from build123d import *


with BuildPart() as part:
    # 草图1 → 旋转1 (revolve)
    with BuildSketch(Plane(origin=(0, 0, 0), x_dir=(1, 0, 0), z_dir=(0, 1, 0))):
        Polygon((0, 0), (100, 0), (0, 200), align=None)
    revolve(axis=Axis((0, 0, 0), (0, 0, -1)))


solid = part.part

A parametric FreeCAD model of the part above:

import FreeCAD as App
import Part
import Sketcher
from FreeCAD import Vector
Q = App.Units.Quantity


def add_polygon(sketch, points):
    """Adds a closed chain of lines whose ends are joined by coincident constraints."""
    first, n = sketch.GeometryCount, len(points)
    for a, b in zip(points, points[1:] + points[:1]):
        sketch.addGeometry(Part.LineSegment(App.Vector(*a, 0), App.Vector(*b, 0)), False)
    for i in range(n):
        sketch.addConstraint(Sketcher.Constraint("Coincident", first + i, 2, first + (i + 1) % n, 1))

doc = App.newDocument("Part")
params = doc.addObject("Spreadsheet::Sheet", "Params")
for row, (alias, value) in enumerate([
    ("sketch1_width", "100 mm"),
    ("sketch1_height", "200 mm"),
    ("revolution_angle", "360 deg"),
], start=1):
    params.set(f"A{row}", alias)
    params.set(f"B{row}", "=" + value)
    params.setAlias(f"B{row}", alias)

body = doc.addObject("PartDesign::Body", "Body")

sketch1 = doc.addObject("Sketcher::SketchObject", "Sketch")
body.addObject(sketch1)
sketch1.AttachmentSupport = (doc.XZ_Plane, [""])
sketch1.MapMode = "FlatFace"
add_polygon(sketch1, [(0, 0), (100, 0), (0, -200)])
sketch1.addConstraint(Sketcher.Constraint("Horizontal", 0))
sketch1.addConstraint(Sketcher.Constraint("Vertical", 2))
sketch1.addConstraint(Sketcher.Constraint("Coincident", 2, 2, -1, 1))
sketch1.addConstraint(Sketcher.Constraint("DistanceX", 0, 1, 0, 2, Q("100 mm")))
sketch1.addConstraint(Sketcher.Constraint("DistanceY", 2, 1, 2, 2, Q("200 mm")))
sketch1.setExpression("Constraints[6]", "Params.sketch1_width")
sketch1.setExpression("Constraints[7]", "Params.sketch1_height")
revolution = doc.addObject("PartDesign::Revolution", "Revolution")
body.addObject(revolution)
revolution.Profile = sketch1
revolution.ReferenceAxis = (sketch1, ["V_Axis"])
revolution.setExpression("Angle", "Params.revolution_angle")

doc.recompute()
